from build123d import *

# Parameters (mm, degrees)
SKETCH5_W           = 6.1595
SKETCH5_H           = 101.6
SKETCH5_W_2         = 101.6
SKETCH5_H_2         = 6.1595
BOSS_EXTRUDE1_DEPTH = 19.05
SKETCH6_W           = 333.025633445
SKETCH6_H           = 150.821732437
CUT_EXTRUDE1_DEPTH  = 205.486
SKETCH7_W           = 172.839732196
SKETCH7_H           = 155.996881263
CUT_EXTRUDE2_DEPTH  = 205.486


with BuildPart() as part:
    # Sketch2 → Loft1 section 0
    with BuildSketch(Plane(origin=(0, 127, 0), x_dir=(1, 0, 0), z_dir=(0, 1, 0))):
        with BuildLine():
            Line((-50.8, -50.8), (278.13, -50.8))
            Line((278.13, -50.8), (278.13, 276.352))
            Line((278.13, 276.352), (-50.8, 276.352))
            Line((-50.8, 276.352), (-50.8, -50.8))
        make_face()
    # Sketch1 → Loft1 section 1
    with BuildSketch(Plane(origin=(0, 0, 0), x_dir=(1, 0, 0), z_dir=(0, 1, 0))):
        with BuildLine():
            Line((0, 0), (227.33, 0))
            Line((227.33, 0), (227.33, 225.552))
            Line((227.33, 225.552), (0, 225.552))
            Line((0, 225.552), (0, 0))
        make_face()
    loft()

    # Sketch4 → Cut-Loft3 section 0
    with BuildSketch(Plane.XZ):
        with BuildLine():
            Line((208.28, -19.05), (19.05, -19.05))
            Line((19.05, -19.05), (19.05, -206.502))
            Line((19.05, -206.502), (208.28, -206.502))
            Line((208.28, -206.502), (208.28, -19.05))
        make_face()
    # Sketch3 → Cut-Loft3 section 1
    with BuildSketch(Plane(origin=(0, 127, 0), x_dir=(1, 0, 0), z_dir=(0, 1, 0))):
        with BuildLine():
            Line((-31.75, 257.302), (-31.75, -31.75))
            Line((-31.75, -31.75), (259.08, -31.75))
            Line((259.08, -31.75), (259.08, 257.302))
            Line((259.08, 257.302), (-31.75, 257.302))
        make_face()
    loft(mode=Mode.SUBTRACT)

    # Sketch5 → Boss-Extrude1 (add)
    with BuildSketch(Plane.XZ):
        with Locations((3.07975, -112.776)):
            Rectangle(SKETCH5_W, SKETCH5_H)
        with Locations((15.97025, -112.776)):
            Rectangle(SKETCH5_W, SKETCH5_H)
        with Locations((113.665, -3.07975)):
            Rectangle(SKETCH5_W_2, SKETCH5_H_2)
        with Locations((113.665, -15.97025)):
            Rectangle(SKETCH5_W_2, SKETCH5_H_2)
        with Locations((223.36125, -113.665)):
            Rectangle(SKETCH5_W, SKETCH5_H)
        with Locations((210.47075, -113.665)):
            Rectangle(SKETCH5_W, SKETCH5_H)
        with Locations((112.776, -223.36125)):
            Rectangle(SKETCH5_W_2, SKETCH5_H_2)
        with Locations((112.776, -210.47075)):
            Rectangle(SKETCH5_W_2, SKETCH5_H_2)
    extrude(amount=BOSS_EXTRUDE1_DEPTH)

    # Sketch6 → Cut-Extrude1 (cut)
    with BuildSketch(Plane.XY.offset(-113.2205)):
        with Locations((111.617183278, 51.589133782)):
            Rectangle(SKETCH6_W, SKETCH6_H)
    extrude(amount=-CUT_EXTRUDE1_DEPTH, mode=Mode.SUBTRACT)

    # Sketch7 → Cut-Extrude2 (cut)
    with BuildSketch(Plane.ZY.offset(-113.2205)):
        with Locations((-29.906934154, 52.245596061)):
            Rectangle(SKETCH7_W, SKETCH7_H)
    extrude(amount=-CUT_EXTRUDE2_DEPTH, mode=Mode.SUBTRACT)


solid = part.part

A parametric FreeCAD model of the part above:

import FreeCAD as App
import Part
import Sketcher
Q = App.Units.Quantity

doc = App.newDocument("Part")
params = doc.addObject("Spreadsheet::Sheet", "Params")
for row, (alias, value) in enumerate([
    ("sketch1_width", "12.95 in"),
    ("sketch1_height", "12.88 in"),
    ("sketch2_width", "8.95 in"),
    ("sketch2_height", "8.88 in"),
    ("sketch3_width", "7.45 in"),
    ("sketch3_height", "7.38 in"),
    ("sketch4_width", "11.45 in"),
    ("sketch4_height", "11.38 in"),
    ("sketch5_width", "4 in"),
    ("pad1_length", "0.75 in"),
    ("pocket1_length", "8.09 in"),
    ("pocket2_length", "8.09 in"),
], start=1):
    params.set(f"A{row}", alias)
    params.set(f"B{row}", "=" + value)
    params.setAlias(f"B{row}", alias)

body = doc.addObject("PartDesign::Body", "Body")

# Sketch on XZ plane
sketch1 = body.newObject("Sketcher::SketchObject", "Sketch")
sketch1.AttachmentSupport = (doc.getObject("XZ_Plane"), [""])
sketch1.MapMode = "FlatFace"
sketch1.AttachmentOffset = App.Placement(App.Vector(0, 0, -5 * 25.4), App.Rotation())
sketch1.addGeometry(Part.LineSegment(App.Vector(-50.8, 50.8, 0), App.Vector(278.13, 50.8, 0)), False)
sketch1.addGeometry(Part.LineSegment(App.Vector(278.13, 50.8, 0), App.Vector(278.13, -276.352, 0)), False)
sketch1.addGeometry(Part.LineSegment(App.Vector(278.13, -276.352, 0), App.Vector(-50.8, -276.352, 0)), False)
sketch1.addGeometry(Part.LineSegment(App.Vector(-50.8, -276.352, 0), App.Vector(-50.8, 50.8, 0)), False)
sketch1.addConstraint(Sketcher.Constraint("Coincident", 0, 2, 1, 1))
sketch1.addConstraint(Sketcher.Constraint("Coincident", 1, 2, 2, 1))
sketch1.addConstraint(Sketcher.Constraint("Coincident", 2, 2, 3, 1))
sketch1.addConstraint(Sketcher.Constraint("Coincident", 3, 2, 0, 1))
sketch1.addConstraint(Sketcher.Constraint("Horizontal", 0))
sketch1.addConstraint(Sketcher.Constraint("Vertical", 1))
sketch1.addConstraint(Sketcher.Constraint("Horizontal", 2))
sketch1.addConstraint(Sketcher.Constraint("Vertical", 3))
sketch1.addConstraint(Sketcher.Constraint("DistanceY", -1, 1, 0, 2, Q("2 in")))
sketch1.addConstraint(Sketcher.Constraint("DistanceX", 2, 2, -1, 1, Q("2 in")))
sketch1.addConstraint(Sketcher.Constraint("DistanceX", 0, 1, 0, 2, Q("12.95 in")))
sketch1.addConstraint(Sketcher.Constraint("DistanceY", 1, 2, 1, 1, Q("12.88 in")))
sketch1.setExpression("Constraints[10]", "Params.sketch1_width")
sketch1.setExpression("Constraints[11]", "Params.sketch1_height")

# Sketch on XZ plane
sketch2 = body.newObject("Sketcher::SketchObject", "Sketch001")
sketch2.AttachmentSupport = (doc.getObject("XZ_Plane"), [""])
sketch2.MapMode = "FlatFace"
sketch2.addGeometry(Part.LineSegment(App.Vector(0, 0, 0), App.Vector(227.33, 0, 0)), False)
sketch2.addGeometry(Part.LineSegment(App.Vector(227.33, 0, 0), App.Vector(227.33, -225.552, 0)), False)
sketch2.addGeometry(Part.LineSegment(App.Vector(227.33, -225.552, 0), App.Vector(0, -225.552, 0)), False)
sketch2.addGeometry(Part.LineSegment(App.Vector(0, -225.552, 0), App.Vector(0, 0, 0)), False)
sketch2.addConstraint(Sketcher.Constraint("Coincident", 0, 2, 1, 1))
sketch2.addConstraint(Sketcher.Constraint("Coincident", 1, 2, 2, 1))
sketch2.addConstraint(Sketcher.Constraint("Coincident", 2, 2, 3, 1))
sketch2.addConstraint(Sketcher.Constraint("Coincident", 3, 2, 0, 1))
sketch2.addConstraint(Sketcher.Constraint("Horizontal", 0))
sketch2.addConstraint(Sketcher.Constraint("Vertical", 1))
sketch2.addConstraint(Sketcher.Constraint("Horizontal", 2))
sketch2.addConstraint(Sketcher.Constraint("Vertical", 3))
sketch2.addConstraint(Sketcher.Constraint("Coincident", 3, 2, -1, 1))
sketch2.addConstraint(Sketcher.Constraint("DistanceX", 0, 1, 0, 2, Q("8.95 in")))
sketch2.addConstraint(Sketcher.Constraint("DistanceY", 1, 2, 1, 1, Q("8.88 in")))
sketch2.setExpression("Constraints[9]", "Params.sketch2_width")
sketch2.setExpression("Constraints[10]", "Params.sketch2_height")

additiveloft = body.newObject("PartDesign::AdditiveLoft", "AdditiveLoft")
additiveloft.Profile = sketch1
additiveloft.Sections = [sketch2]

# Sketch on XZ plane
sketch3 = body.newObject("Sketcher::SketchObject", "Sketch002")
sketch3.AttachmentSupport = (doc.getObject("XZ_Plane"), [""])
sketch3.MapMode = "FlatFace"
sketch3.addGeometry(Part.LineSegment(App.Vector(208.28, -19.05, 0), App.Vector(19.05, -19.05, 0)), False)
sketch3.addGeometry(Part.LineSegment(App.Vector(19.05, -19.05, 0), App.Vector(19.05, -206.502, 0)), False)
sketch3.addGeometry(Part.LineSegment(App.Vector(19.05, -206.502, 0), App.Vector(208.28, -206.502, 0)), False)
sketch3.addGeometry(Part.LineSegment(App.Vector(208.28, -206.502, 0), App.Vector(208.28, -19.05, 0)), False)
sketch3.addConstraint(Sketcher.Constraint("Coincident", 0, 2, 1, 1))
sketch3.addConstraint(Sketcher.Constraint("Coincident", 1, 2, 2, 1))
sketch3.addConstraint(Sketcher.Constraint("Coincident", 2, 2, 3, 1))
sketch3.addConstraint(Sketcher.Constraint("Coincident", 3, 2, 0, 1))
sketch3.addConstraint(Sketcher.Constraint("Horizontal", 0))
sketch3.addConstraint(Sketcher.Constraint("Vertical", 1))
sketch3.addConstraint(Sketcher.Constraint("Horizontal", 2))
sketch3.addConstraint(Sketcher.Constraint("Vertical", 3))
sketch3.addConstraint(Sketcher.Constraint("DistanceX", 0, 2, 0, 1, Q("7.45 in")))
sketch3.addConstraint(Sketcher.Constraint("DistanceY", 1, 2, 1, 1, Q("7.38 in")))
sketch3.addConstraint(Sketcher.Constraint("DistanceX", -1, 1, 2, 2, Q("8.2 in")))
sketch3.addConstraint(Sketcher.Constraint("DistanceY", 0, 2, -1, 1, Q("0.75 in")))
sketch3.setExpression("Constraints[8]", "Params.sketch3_width")
sketch3.setExpression("Constraints[9]", "Params.sketch3_height")

# Sketch on XZ plane
sketch4 = body.newObject("Sketcher::SketchObject", "Sketch003")
sketch4.AttachmentSupport = (doc.getObject("XZ_Plane"), [""])
sketch4.MapMode = "FlatFace"
sketch4.AttachmentOffset = App.Placement(App.Vector(0, 0, -5 * 25.4), App.Rotation())
sketch4.addGeometry(Part.LineSegment(App.Vector(-31.75, -257.302, 0), App.Vector(-31.75, 31.75, 0)), False)
sketch4.addGeometry(Part.LineSegment(App.Vector(-31.75, 31.75, 0), App.Vector(259.08, 31.75, 0)), False)
sketch4.addGeometry(Part.LineSegment(App.Vector(259.08, 31.75, 0), App.Vector(259.08, -257.302, 0)), False)
sketch4.addGeometry(Part.LineSegment(App.Vector(259.08, -257.302, 0), App.Vector(-31.75, -257.302, 0)), False)
sketch4.addConstraint(Sketcher.Constraint("Coincident", 0, 2, 1, 1))
sketch4.addConstraint(Sketcher.Constraint("Coincident", 1, 2, 2, 1))
sketch4.addConstraint(Sketcher.Constraint("Coincident", 2, 2, 3, 1))
sketch4.addConstraint(Sketcher.Constraint("Coincident", 3, 2, 0, 1))
sketch4.addConstraint(Sketcher.Constraint("Vertical", 0))
sketch4.addConstraint(Sketcher.Constraint("Horizontal", 1))
sketch4.addConstraint(Sketcher.Constraint("Vertical", 2))
sketch4.addConstraint(Sketcher.Constraint("Horizontal", 3))
sketch4.addConstraint(Sketcher.Constraint("DistanceX", 1, 1, 1, 2, Q("11.45 in")))
sketch4.addConstraint(Sketcher.Constraint("DistanceY", 0, 1, 0, 2, Q("11.38 in")))
sketch4.addConstraint(Sketcher.Constraint("DistanceX", -1, 1, 1, 2, Q("10.2 in")))
sketch4.addConstraint(Sketcher.Constraint("DistanceY", -1, 1, 0, 2, Q("1.25 in")))
sketch4.setExpression("Constraints[8]", "Params.sketch4_width")
sketch4.setExpression("Constraints[9]", "Params.sketch4_height")

subtractiveloft = body.newObject("PartDesign::SubtractiveLoft", "SubtractiveLoft")
subtractiveloft.Profile = sketch3
subtractiveloft.Sections = [sketch4]

# Sketch on XZ plane
sketch5 = body.newObject("Sketcher::SketchObject", "Sketch004")
sketch5.AttachmentSupport = (doc.getObject("XZ_Plane"), [""])
sketch5.MapMode = "FlatFace"
sketch5.addGeometry(Part.LineSegment(App.Vector(0, -61.976, 0), App.Vector(0, -163.576, 0)), False)
sketch5.addGeometry(Part.LineSegment(App.Vector(0, -163.576, 0), App.Vector(6.1595, -163.576, 0)), False)
sketch5.addGeometry(Part.LineSegment(App.Vector(6.1595, -163.576, 0), App.Vector(6.1595, -61.976, 0)), False)
sketch5.addGeometry(Part.LineSegment(App.Vector(6.1595, -61.976, 0), App.Vector(0, -61.976, 0)), False)
sketch5.addGeometry(Part.LineSegment(App.Vector(12.8905, -61.976, 0), App.Vector(12.8905, -163.576, 0)), False)
sketch5.addGeometry(Part.LineSegment(App.Vector(12.8905, -163.576, 0), App.Vector(19.05, -163.576, 0)), False)
sketch5.addGeometry(Part.LineSegment(App.Vector(19.05, -163.576, 0), App.Vector(19.05, -61.976, 0)), False)
sketch5.addGeometry(Part.LineSegment(App.Vector(19.05, -61.976, 0), App.Vector(12.8905, -61.976, 0)), False)
sketch5.addGeometry(Part.LineSegment(App.Vector(62.865, 0, 0), App.Vector(62.865, -6.1595, 0)), False)
sketch5.addGeometry(Part.LineSegment(App.Vector(62.865, -6.1595, 0), App.Vector(164.465, -6.1595, 0)), False)
sketch5.addGeometry(Part.LineSegment(App.Vector(164.465, -6.1595, 0), App.Vector(164.465, 0, 0)), False)
sketch5.addGeometry(Part.LineSegment(App.Vector(164.465, 0, 0), App.Vector(62.865, 0, 0)), False)
sketch5.addGeometry(Part.LineSegment(App.Vector(62.865, -12.8905, 0), App.Vector(62.865, -19.05, 0)), False)
sketch5.addGeometry(Part.LineSegment(App.Vector(62.865, -19.05, 0), App.Vector(164.465, -19.05, 0)), False)
sketch5.addGeometry(Part.LineSegment(App.Vector(164.465, -19.05, 0), App.Vector(164.465, -12.8905, 0)), False)
sketch5.addGeometry(Part.LineSegment(App.Vector(164.465, -12.8905, 0), App.Vector(62.865, -12.8905, 0)), False)
sketch5.addGeometry(Part.LineSegment(App.Vector(220.2815, -62.865, 0), App.Vector(220.2815, -164.465, 0)), False)
sketch5.addGeometry(Part.LineSegment(App.Vector(220.2815, -164.465, 0), App.Vector(226.441, -164.465, 0)), False)
sketch5.addGeometry(Part.LineSegment(App.Vector(226.441, -164.465, 0), App.Vector(226.441, -62.865, 0)), False)
sketch5.addGeometry(Part.LineSegment(App.Vector(226.441, -62.865, 0), App.Vector(220.2815, -62.865, 0)), False)
sketch5.addGeometry(Part.LineSegment(App.Vector(207.391, -62.865, 0), App.Vector(207.391, -164.465, 0)), False)
sketch5.addGeometry(Part.LineSegment(App.Vector(207.391, -164.465, 0), App.Vector(213.5505, -164.465, 0)), False)
sketch5.addGeometry(Part.LineSegment(App.Vector(213.5505, -164.465, 0), App.Vector(213.5505, -62.865, 0)), False)
sketch5.addGeometry(Part.LineSegment(App.Vector(213.5505, -62.865, 0), App.Vector(207.391, -62.865, 0)), False)
sketch5.addGeometry(Part.LineSegment(App.Vector(61.976, -220.2815, 0), App.Vector(61.976, -226.441, 0)), False)
sketch5.addGeometry(Part.LineSegment(App.Vector(61.976, -226.441, 0), App.Vector(163.576, -226.441, 0)), False)
sketch5.addGeometry(Part.LineSegment(App.Vector(163.576, -226.441, 0), App.Vector(163.576, -220.2815, 0)), False)
sketch5.addGeometry(Part.LineSegment(App.Vector(163.576, -220.2815, 0), App.Vector(61.976, -220.2815, 0)), False)
sketch5.addGeometry(Part.LineSegment(App.Vector(61.976, -207.391, 0), App.Vector(61.976, -213.5505, 0)), False)
sketch5.addGeometry(Part.LineSegment(App.Vector(61.976, -213.5505, 0), App.Vector(163.576, -213.5505, 0)), False)
sketch5.addGeometry(Part.LineSegment(App.Vector(163.576, -213.5505, 0), App.Vector(163.576, -207.391, 0)), False)
sketch5.addGeometry(Part.LineSegment(App.Vector(163.576, -207.391, 0), App.Vector(61.976, -207.391, 0)), False)
sketch5.addConstraint(Sketcher.Constraint("Coincident", 0, 2, 1, 1))
sketch5.addConstraint(Sketcher.Constraint("Coincident", 1, 2, 2, 1))
sketch5.addConstraint(Sketcher.Constraint("Coincident", 2, 2, 3, 1))
sketch5.addConstraint(Sketcher.Constraint("Coincident", 3, 2, 0, 1))
sketch5.addConstraint(Sketcher.Constraint("Coincident", 4, 2, 5, 1))
sketch5.addConstraint(Sketcher.Constraint("Coincident", 5, 2, 6, 1))
sketch5.addConstraint(Sketcher.Constraint("Coincident", 6, 2, 7, 1))
sketch5.addConstraint(Sketcher.Constraint("Coincident", 7, 2, 4, 1))
sketch5.addConstraint(Sketcher.Constraint("Coincident", 8, 2, 9, 1))
sketch5.addConstraint(Sketcher.Constraint("Coincident", 9, 2, 10, 1))
sketch5.addConstraint(Sketcher.Constraint("Coincident", 10, 2, 11, 1))
sketch5.addConstraint(Sketcher.Constraint("Coincident", 11, 2, 8, 1))
sketch5.addConstraint(Sketcher.Constraint("Coincident", 12, 2, 13, 1))
sketch5.addConstraint(Sketcher.Constraint("Coincident", 13, 2, 14, 1))
sketch5.addConstraint(Sketcher.Constraint("Coincident", 14, 2, 15, 1))
sketch5.addConstraint(Sketcher.Constraint("Coincident", 15, 2, 12, 1))
sketch5.addConstraint(Sketcher.Constraint("Coincident", 16, 2, 17, 1))
sketch5.addConstraint(Sketcher.Constraint("Coincident", 17, 2, 18, 1))
sketch5.addConstraint(Sketcher.Constraint("Coincident", 18, 2, 19, 1))
sketch5.addConstraint(Sketcher.Constraint("Coincident", 19, 2, 16, 1))
sketch5.addConstraint(Sketcher.Constraint("Coincident", 20, 2, 21, 1))
sketch5.addConstraint(Sketcher.Constraint("Coincident", 21, 2, 22, 1))
sketch5.addConstraint(Sketcher.Constraint("Coincident", 22, 2, 23, 1))
sketch5.addConstraint(Sketcher.Constraint("Coincident", 23, 2, 20, 1))
sketch5.addConstraint(Sketcher.Constraint("Coincident", 24, 2, 25, 1))
sketch5.addConstraint(Sketcher.Constraint("Coincident", 25, 2, 26, 1))
sketch5.addConstraint(Sketcher.Constraint("Coincident", 26, 2, 27, 1))
sketch5.addConstraint(Sketcher.Constraint("Coincident", 27, 2, 24, 1))
sketch5.addConstraint(Sketcher.Constraint("Coincident", 28, 2, 29, 1))
sketch5.addConstraint(Sketcher.Constraint("Coincident", 29, 2, 30, 1))
sketch5.addConstraint(Sketcher.Constraint("Coincident", 30, 2, 31, 1))
sketch5.addConstraint(Sketcher.Constraint("Coincident", 31, 2, 28, 1))
sketch5.addConstraint(Sketcher.Constraint("Vertical", 0))
sketch5.addConstraint(Sketcher.Constraint("Horizontal", 1))
sketch5.addConstraint(Sketcher.Constraint("Vertical", 2))
sketch5.addConstraint(Sketcher.Constraint("Horizontal", 3))
sketch5.addConstraint(Sketcher.Constraint("Vertical", 4))
sketch5.addConstraint(Sketcher.Constraint("Horizontal", 5))
sketch5.addConstraint(Sketcher.Constraint("Vertical", 6))
sketch5.addConstraint(Sketcher.Constraint("Horizontal", 7))
sketch5.addConstraint(Sketcher.Constraint("Vertical", 8))
sketch5.addConstraint(Sketcher.Constraint("Horizontal", 9))
sketch5.addConstraint(Sketcher.Constraint("Vertical", 10))
sketch5.addConstraint(Sketcher.Constraint("Horizontal", 11))
sketch5.addConstraint(Sketcher.Constraint("Vertical", 12))
sketch5.addConstraint(Sketcher.Constraint("Horizontal", 13))
sketch5.addConstraint(Sketcher.Constraint("Vertical", 14))
sketch5.addConstraint(Sketcher.Constraint("Horizontal", 15))
sketch5.addConstraint(Sketcher.Constraint("Vertical", 16))
sketch5.addConstraint(Sketcher.Constraint("Horizontal", 17))
sketch5.addConstraint(Sketcher.Constraint("Vertical", 18))
sketch5.addConstraint(Sketcher.Constraint("Horizontal", 19))
sketch5.addConstraint(Sketcher.Constraint("Vertical", 20))
sketch5.addConstraint(Sketcher.Constraint("Horizontal", 21))
sketch5.addConstraint(Sketcher.Constraint("Vertical", 22))
sketch5.addConstraint(Sketcher.Constraint("Horizontal", 23))
sketch5.addConstraint(Sketcher.Constraint("Vertical", 24))
sketch5.addConstraint(Sketcher.Constraint("Horizontal", 25))
sketch5.addConstraint(Sketcher.Constraint("Vertical", 26))
sketch5.addConstraint(Sketcher.Constraint("Horizontal", 27))
sketch5.addConstraint(Sketcher.Constraint("Vertical", 28))
sketch5.addConstraint(Sketcher.Constraint("Horizontal", 29))
sketch5.addConstraint(Sketcher.Constraint("Vertical", 30))
sketch5.addConstraint(Sketcher.Constraint("Horizontal", 31))
sketch5.addConstraint(Sketcher.Constraint("PointOnObject", 0, 2, -2))
sketch5.addConstraint(Sketcher.Constraint("PointOnObject", 10, 2, -1))
sketch5.addConstraint(Sketcher.Constraint("Horizontal", 1, 2, 4, 2))
sketch5.addConstraint(Sketcher.Constraint("Horizontal", 3, 2, 6, 2))
sketch5.addConstraint(Sketcher.Constraint("Horizontal", 17, 2, 20, 2))
sketch5.addConstraint(Sketcher.Constraint("Horizontal", 19, 2, 22, 2))
sketch5.addConstraint(Sketcher.Constraint("Vertical", 11, 2, 12, 2))
sketch5.addConstraint(Sketcher.Constraint("Vertical", 10, 2, 13, 2))
sketch5.addConstraint(Sketcher.Constraint("Vertical", 27, 2, 28, 2))
sketch5.addConstraint(Sketcher.Constraint("Vertical", 26, 2, 29, 2))
sketch5.addConstraint(Sketcher.Constraint("Equal", 3, 5))
sketch5.addConstraint(Sketcher.Constraint("Equal", 7, 17))
sketch5.addConstraint(Sketcher.Constraint("Equal", 19, 21))
sketch5.addConstraint(Sketcher.Constraint("Equal", 15, 25))
sketch5.addConstraint(Sketcher.Constraint("Equal", 31, 0))
sketch5.addConstraint(Sketcher.Constraint("Equal", 23, 8))
sketch5.addConstraint(Sketcher.Constraint("Equal", 10, 12))
sketch5.addConstraint(Sketcher.Constraint("Equal", 6, 16))
sketch5.addConstraint(Sketcher.Constraint("Equal", 14, 24))
sketch5.addConstraint(Sketcher.Constraint("Equal", 26, 28))
sketch5.addConstraint(Sketcher.Constraint("DistanceX", 9, 1, 9, 2, Q("4 in")))
sketch5.addConstraint(Sketcher.Constraint("DistanceY", 0, 2, -1, 1, Q("6.44 in")))
sketch5.addConstraint(Sketcher.Constraint("DistanceX", -1, 1, 5, 2, Q("0.75 in")))
sketch5.addConstraint(Sketcher.Constraint("DistanceY", 12, 2, -1, 1, Q("0.75 in")))
sketch5.addConstraint(Sketcher.Constraint("DistanceX", -1, 1, 24, 2, Q("2.44 in")))
sketch5.addConstraint(Sketcher.Constraint("DistanceX", 13, 2, 17, 2, Q("2.44 in")))
sketch5.addConstraint(Sketcher.Constraint("DistanceX", 20, 2, 17, 2, Q("0.75 in")))
sketch5.addConstraint(Sketcher.Constraint("DistanceY", 24, 2, 20, 2, Q("2.44 in")))
sketch5.addConstraint(Sketcher.Constraint("DistanceY", 25, 2, 30, 2, Q("0.75 in")))
sketch5.addConstraint(Sketcher.Constraint("DistanceX", 1, 1, 1, 2, Q("0.2425 in")))
sketch5.addConstraint(Sketcher.Constraint("DistanceX", -1, 1, 8, 2, Q("2.475 in")))
sketch5.addConstraint(Sketcher.Constraint("DistanceY", 16, 2, -1, 1, Q("6.475 in")))
sketch5.setExpression("Constraints[84]", "Params.sketch5_width")
pad1 = body.newObject("PartDesign::Pad", "Pad")
pad1.Profile = sketch5
pad1.setExpression("Length", "Params.pad1_length")

# Sketch on XY plane
sketch6 = body.newObject("Sketcher::SketchObject", "Sketch005")
sketch6.AttachmentSupport = (doc.getObject("XY_Plane"), [""])
sketch6.MapMode = "FlatFace"
sketch6.AttachmentOffset = App.Placement(App.Vector(0, 0, -4.4575 * 25.4), App.Rotation())
sketch6.addGeometry(Part.LineSegment(App.Vector(-54.895633, 127, 0), App.Vector(-54.895633, -23.821732, 0)), False)
sketch6.addGeometry(Part.LineSegment(App.Vector(-54.895633, -23.821732, 0), App.Vector(278.13, -23.821732, 0)), False)
sketch6.addGeometry(Part.LineSegment(App.Vector(278.13, -23.821732, 0), App.Vector(278.13, 127, 0)), False)
sketch6.addGeometry(Part.LineSegment(App.Vector(278.13, 127, 0), App.Vector(-54.895633, 127, 0)), False)
sketch6.addConstraint(Sketcher.Constraint("Coincident", 0, 2, 1, 1))
sketch6.addConstraint(Sketcher.Constraint("Coincident", 1, 2, 2, 1))
sketch6.addConstraint(Sketcher.Constraint("Coincident", 2, 2, 3, 1))
sketch6.addConstraint(Sketcher.Constraint("Coincident", 3, 2, 0, 1))
sketch6.addConstraint(Sketcher.Constraint("Vertical", 0))
sketch6.addConstraint(Sketcher.Constraint("Horizontal", 1))
sketch6.addConstraint(Sketcher.Constraint("Vertical", 2))
sketch6.addConstraint(Sketcher.Constraint("Horizontal", 3))
sketch6.addConstraint(Sketcher.Constraint("DistanceY", -1, 1, 2, 2, Q("5 in")))
sketch6.addConstraint(Sketcher.Constraint("DistanceX", -1, 1, 1, 2, Q("10.95 in")))
sketch6.addConstraint(Sketcher.Constraint("DistanceX", 1, 1, 1, 2, Q("333.025633 mm")))
sketch6.addConstraint(Sketcher.Constraint("DistanceY", 0, 2, 0, 1, Q("150.821732 mm")))
pocket1 = body.newObject("PartDesign::Pocket", "Pocket")
pocket1.Profile = sketch6
pocket1.setExpression("Length", "Params.pocket1_length")

# Sketch on YZ plane
sketch7 = body.newObject("Sketcher::SketchObject", "Sketch006")
sketch7.AttachmentSupport = (doc.getObject("YZ_Plane"), [""])
sketch7.MapMode = "FlatFace"
sketch7.AttachmentOffset = App.Placement(App.Vector(0, 0, 4.4575 * 25.4), App.Rotation())
sketch7.addGeometry(Part.LineSegment(App.Vector(130.244037, -116.3268, 0), App.Vector(-25.752845, -116.3268, 0)), False)
sketch7.addGeometry(Part.LineSegment(App.Vector(-25.752845, -116.3268, 0), App.Vector(-25.752845, 56.512932, 0)), False)
sketch7.addGeometry(Part.LineSegment(App.Vector(-25.752845, 56.512932, 0), App.Vector(130.244037, 56.512932, 0)), False)
sketch7.addGeometry(Part.LineSegment(App.Vector(130.244037, 56.512932, 0), App.Vector(130.244037, -116.3268, 0)), False)
sketch7.addConstraint(Sketcher.Constraint("Coincident", 0, 2, 1, 1))
sketch7.addConstraint(Sketcher.Constraint("Coincident", 1, 2, 2, 1))
sketch7.addConstraint(Sketcher.Constraint("Coincident", 2, 2, 3, 1))
sketch7.addConstraint(Sketcher.Constraint("Coincident", 3, 2, 0, 1))
sketch7.addConstraint(Sketcher.Constraint("Horizontal", 0))
sketch7.addConstraint(Sketcher.Constraint("Vertical", 1))
sketch7.addConstraint(Sketcher.Constraint("Horizontal", 2))
sketch7.addConstraint(Sketcher.Constraint("Vertical", 3))
sketch7.addConstraint(Sketcher.Constraint("DistanceX", 0, 2, 0, 1, Q("155.996881 mm")))
sketch7.addConstraint(Sketcher.Constraint("DistanceY", 0, 2, -1, 1, Q("116.3268 mm")))
sketch7.addConstraint(Sketcher.Constraint("DistanceY", 1, 1, 1, 2, Q("172.839732 mm")))
sketch7.addConstraint(Sketcher.Constraint("DistanceX", 0, 2, -1, 1, Q("25.752845 mm")))
pocket2 = body.newObject("PartDesign::Pocket", "Pocket001")
pocket2.Profile = sketch7
pocket2.setExpression("Length", "Params.pocket2_length")
pocket2.Reversed = True

doc.recompute()
